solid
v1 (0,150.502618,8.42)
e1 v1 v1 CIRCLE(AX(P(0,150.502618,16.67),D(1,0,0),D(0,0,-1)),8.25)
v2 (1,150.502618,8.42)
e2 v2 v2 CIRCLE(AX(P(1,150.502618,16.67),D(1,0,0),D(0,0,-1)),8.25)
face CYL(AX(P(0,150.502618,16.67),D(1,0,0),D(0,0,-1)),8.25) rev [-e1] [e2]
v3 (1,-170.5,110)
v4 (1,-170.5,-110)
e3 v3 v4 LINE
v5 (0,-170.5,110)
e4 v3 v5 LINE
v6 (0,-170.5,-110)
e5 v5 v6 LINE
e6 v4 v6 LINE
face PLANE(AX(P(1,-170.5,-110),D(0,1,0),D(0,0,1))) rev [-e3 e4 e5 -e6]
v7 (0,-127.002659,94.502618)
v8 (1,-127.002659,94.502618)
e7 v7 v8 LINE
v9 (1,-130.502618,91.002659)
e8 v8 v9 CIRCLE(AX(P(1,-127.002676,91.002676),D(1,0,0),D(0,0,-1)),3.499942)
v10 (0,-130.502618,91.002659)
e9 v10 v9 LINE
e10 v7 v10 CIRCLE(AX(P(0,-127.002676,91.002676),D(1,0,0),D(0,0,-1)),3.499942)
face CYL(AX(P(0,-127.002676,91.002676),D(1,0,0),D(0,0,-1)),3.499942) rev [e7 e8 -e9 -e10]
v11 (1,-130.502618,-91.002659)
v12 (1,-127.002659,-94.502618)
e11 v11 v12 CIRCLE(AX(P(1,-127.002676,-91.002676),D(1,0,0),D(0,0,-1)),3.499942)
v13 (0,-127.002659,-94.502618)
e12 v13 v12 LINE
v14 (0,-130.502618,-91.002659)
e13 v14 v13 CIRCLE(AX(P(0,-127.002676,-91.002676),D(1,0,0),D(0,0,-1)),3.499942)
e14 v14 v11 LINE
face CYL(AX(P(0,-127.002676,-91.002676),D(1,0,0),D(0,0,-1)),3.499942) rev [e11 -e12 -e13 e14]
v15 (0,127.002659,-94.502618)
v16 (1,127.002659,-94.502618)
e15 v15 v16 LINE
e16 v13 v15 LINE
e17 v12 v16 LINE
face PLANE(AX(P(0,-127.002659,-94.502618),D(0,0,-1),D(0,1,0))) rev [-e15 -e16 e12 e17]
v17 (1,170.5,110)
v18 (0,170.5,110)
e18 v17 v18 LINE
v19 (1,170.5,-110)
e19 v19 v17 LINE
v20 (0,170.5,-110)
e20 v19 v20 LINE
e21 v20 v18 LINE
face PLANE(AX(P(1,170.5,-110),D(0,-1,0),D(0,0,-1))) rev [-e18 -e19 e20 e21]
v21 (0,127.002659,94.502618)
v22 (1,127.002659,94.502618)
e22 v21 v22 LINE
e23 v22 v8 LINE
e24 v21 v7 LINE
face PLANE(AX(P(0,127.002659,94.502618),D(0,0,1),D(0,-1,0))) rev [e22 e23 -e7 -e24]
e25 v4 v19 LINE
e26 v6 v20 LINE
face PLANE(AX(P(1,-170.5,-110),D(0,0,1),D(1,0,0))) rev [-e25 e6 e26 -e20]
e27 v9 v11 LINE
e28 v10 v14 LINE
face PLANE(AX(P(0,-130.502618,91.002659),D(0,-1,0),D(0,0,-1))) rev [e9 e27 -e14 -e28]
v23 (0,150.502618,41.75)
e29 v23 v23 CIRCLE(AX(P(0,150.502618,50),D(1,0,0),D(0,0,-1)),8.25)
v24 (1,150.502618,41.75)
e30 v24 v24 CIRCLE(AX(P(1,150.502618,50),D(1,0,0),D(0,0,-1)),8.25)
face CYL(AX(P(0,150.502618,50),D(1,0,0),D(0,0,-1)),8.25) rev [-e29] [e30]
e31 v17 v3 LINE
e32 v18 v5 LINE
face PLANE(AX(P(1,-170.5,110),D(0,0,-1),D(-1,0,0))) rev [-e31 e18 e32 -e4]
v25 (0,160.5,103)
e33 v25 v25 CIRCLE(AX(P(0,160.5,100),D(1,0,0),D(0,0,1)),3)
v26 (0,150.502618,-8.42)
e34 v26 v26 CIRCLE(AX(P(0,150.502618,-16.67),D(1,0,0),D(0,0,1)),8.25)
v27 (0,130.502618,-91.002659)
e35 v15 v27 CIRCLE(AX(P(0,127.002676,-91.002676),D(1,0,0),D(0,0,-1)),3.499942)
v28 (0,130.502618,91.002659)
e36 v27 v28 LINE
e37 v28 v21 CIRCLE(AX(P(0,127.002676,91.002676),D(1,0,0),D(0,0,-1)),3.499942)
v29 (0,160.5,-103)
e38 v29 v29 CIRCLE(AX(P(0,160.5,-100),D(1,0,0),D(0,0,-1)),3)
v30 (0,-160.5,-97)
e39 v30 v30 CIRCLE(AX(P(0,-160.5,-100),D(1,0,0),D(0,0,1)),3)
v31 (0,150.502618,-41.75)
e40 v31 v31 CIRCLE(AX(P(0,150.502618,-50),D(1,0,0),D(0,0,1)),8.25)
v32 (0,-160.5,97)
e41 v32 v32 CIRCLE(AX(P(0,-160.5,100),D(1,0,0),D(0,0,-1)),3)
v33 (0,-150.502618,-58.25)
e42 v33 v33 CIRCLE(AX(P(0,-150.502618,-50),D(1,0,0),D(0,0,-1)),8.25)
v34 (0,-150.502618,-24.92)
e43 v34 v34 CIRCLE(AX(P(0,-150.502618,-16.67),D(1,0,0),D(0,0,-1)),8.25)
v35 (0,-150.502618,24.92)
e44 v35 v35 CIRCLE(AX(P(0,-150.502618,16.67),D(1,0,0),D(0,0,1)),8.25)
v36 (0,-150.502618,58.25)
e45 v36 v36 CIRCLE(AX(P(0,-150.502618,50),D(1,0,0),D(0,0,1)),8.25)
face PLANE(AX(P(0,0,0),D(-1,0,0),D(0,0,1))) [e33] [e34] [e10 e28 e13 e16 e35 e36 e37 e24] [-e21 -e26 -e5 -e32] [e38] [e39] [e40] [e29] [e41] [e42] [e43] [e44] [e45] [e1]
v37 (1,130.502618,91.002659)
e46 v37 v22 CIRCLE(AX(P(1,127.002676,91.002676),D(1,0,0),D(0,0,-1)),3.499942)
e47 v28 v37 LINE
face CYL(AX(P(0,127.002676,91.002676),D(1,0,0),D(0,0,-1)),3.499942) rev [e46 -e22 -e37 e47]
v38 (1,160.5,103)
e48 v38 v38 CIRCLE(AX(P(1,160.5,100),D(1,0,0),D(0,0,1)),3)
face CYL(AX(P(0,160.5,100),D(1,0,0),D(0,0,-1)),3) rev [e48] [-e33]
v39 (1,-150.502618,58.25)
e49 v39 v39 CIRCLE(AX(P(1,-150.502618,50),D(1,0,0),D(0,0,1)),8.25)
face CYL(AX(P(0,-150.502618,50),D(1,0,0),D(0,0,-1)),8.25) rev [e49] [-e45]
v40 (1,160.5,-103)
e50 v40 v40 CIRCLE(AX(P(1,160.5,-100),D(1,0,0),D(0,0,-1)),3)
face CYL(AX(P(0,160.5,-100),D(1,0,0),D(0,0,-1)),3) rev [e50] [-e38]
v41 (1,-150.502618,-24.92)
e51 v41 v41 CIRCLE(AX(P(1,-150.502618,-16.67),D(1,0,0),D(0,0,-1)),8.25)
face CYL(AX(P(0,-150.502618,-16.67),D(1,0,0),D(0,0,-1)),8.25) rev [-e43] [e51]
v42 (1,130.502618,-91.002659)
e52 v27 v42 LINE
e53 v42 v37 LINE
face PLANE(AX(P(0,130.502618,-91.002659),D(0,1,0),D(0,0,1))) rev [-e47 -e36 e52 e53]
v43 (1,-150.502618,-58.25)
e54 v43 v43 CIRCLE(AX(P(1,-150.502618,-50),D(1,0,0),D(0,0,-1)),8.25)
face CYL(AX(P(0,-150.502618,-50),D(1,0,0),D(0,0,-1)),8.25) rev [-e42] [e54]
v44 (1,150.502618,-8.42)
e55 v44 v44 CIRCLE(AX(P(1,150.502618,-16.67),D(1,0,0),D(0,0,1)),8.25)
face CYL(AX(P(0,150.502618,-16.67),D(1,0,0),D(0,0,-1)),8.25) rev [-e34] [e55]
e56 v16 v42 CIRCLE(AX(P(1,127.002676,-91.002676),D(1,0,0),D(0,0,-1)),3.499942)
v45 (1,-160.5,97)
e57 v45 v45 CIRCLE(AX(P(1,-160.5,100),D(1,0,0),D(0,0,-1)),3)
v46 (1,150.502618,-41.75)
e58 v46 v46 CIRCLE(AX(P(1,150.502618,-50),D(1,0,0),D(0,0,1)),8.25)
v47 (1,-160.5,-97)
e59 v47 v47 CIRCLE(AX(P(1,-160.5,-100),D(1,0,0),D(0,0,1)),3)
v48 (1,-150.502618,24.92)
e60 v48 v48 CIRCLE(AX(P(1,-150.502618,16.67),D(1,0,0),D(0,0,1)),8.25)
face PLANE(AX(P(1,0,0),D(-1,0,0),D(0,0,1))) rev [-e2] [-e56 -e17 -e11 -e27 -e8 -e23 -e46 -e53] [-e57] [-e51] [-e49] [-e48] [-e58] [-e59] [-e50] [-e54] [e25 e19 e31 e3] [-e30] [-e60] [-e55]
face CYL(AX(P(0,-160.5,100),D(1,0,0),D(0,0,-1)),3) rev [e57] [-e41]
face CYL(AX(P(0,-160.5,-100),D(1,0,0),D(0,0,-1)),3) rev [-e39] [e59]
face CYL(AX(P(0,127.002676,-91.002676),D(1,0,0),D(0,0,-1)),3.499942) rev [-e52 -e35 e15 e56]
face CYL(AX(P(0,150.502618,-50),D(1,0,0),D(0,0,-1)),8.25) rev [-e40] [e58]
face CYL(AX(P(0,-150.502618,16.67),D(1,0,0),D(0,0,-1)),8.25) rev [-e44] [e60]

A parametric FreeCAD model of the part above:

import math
import FreeCAD as App
import Part
import Sketcher

V = App.Vector


def add_polygon(sketch, points):
    """Adds a closed chain of lines whose ends are joined by coincident constraints."""
    first, n = sketch.GeometryCount, len(points)
    for a, b in zip(points, points[1:] + points[:1]):
        sketch.addGeometry(Part.LineSegment(App.Vector(*a, 0), App.Vector(*b, 0)), False)
    for i in range(n):
        sketch.addConstraint(Sketcher.Constraint("Coincident", first + i, 2, first + (i + 1) % n, 1))

doc = App.newDocument("Part")
params = doc.addObject("Spreadsheet::Sheet", "Params")
for row, (alias, value) in enumerate([
    ("sketch1_width", "341 mm"),
    ("sketch1_height", "220 mm"),
    ("pad1_length", "1 mm"),
    ("sketch2_diameter", "16.5 mm"),
    ("sketch3_diameter", "6 mm"),
], start=1):
    params.set(f"A{row}", alias)
    params.set(f"B{row}", "=" + value)
    params.setAlias(f"B{row}", alias)

body = doc.addObject("PartDesign::Body", "Body")

sketch1 = doc.addObject("Sketcher::SketchObject", "Sketch")
body.addObject(sketch1)
sketch1.AttachmentSupport = (doc.YZ_Plane, [""])
sketch1.MapMode = "FlatFace"
add_polygon(sketch1, [(-170, 110), (-170, -110), (170, -110), (170, 110)])
sketch1.addConstraint(Sketcher.Constraint("Vertical", 0))
sketch1.addConstraint(Sketcher.Constraint("Horizontal", 1))
sketch1.addConstraint(Sketcher.Constraint("Vertical", 2))
sketch1.addConstraint(Sketcher.Constraint("Horizontal", 3))
sketch1.addConstraint(Sketcher.Constraint("Symmetric", 0, 2, 2, 2, -1, 1))
sketch1.addConstraint(Sketcher.Constraint("DistanceX", 1, 1, 1, 2, 341.0))
sketch1.addConstraint(Sketcher.Constraint("DistanceY", 0, 2, 0, 1, 220.0))
sketch1.setExpression("Constraints[9]", "Params.sketch1_width")
sketch1.setExpression("Constraints[10]", "Params.sketch1_height")
pad1 = doc.addObject("PartDesign::Pad", "Pad")
body.addObject(pad1)
pad1.Profile = sketch1
pad1.setExpression("Length", "Params.pad1_length")

sketch2 = doc.addObject("Sketcher::SketchObject", "Sketch001")
body.addObject(sketch2)
sketch2.AttachmentSupport = (doc.YZ_Plane, [""])
sketch2.MapMode = "FlatFace"
sketch2.AttachmentOffset = App.Placement(V(0, 0, 1), App.Rotation())
sketch2.addGeometry(Part.Circle(V(150.5, 50, 0), V(0, 0, 1), 8.2), False)
sketch2.addGeometry(Part.Circle(V(150.5, 16.7, 0), V(0, 0, 1), 8.2), False)
sketch2.addGeometry(Part.Circle(V(150.5, -16.7, 0), V(0, 0, 1), 8.2), False)
sketch2.addGeometry(Part.Circle(V(150.5, -50, 0), V(0, 0, 1), 8.2), False)
sketch2.addGeometry(Part.Circle(V(-150.5, -50, 0), V(0, 0, 1), 8.2), False)
sketch2.addGeometry(Part.Circle(V(-150.5, -16.7, 0), V(0, 0, 1), 8.2), False)
sketch2.addGeometry(Part.Circle(V(-150.5, 16.7, 0), V(0, 0, 1), 8.2), False)
sketch2.addGeometry(Part.Circle(V(-150.5, 50, 0), V(0, 0, 1), 8.2), False)
sketch2.addGeometry(Part.LineSegment(V(-130.5, 91, 0), V(-130.5, -91, 0)), False)
sketch2.addGeometry(Part.ArcOfCircle(Part.Circle(V(-127, -91, 0), V(0, 0, 1), 3.5), math.radians(180), math.radians(270)), False)
sketch2.addGeometry(Part.LineSegment(V(-127, -94.5, 0), V(127, -94.5, 0)), False)
sketch2.addGeometry(Part.ArcOfCircle(Part.Circle(V(127, -91, 0), V(0, 0, 1), 3.5), math.radians(-90), math.radians(0)), False)
sketch2.addGeometry(Part.LineSegment(V(130.5, -91, 0), V(130.5, 91, 0)), False)
sketch2.addGeometry(Part.ArcOfCircle(Part.Circle(V(127, 91, 0), V(0, 0, 1), 3.5), math.radians(0), math.radians(90)), False)
sketch2.addGeometry(Part.LineSegment(V(127, 94.5, 0), V(-127, 94.5, 0)), False)
sketch2.addGeometry(Part.ArcOfCircle(Part.Circle(V(-127, 91, 0), V(0, 0, 1), 3.5), math.radians(90), math.radians(180)), False)
sketch2.addConstraint(Sketcher.Constraint("Coincident", 8, 2, 9, 1))
sketch2.addConstraint(Sketcher.Constraint("Coincident", 9, 2, 10, 1))
sketch2.addConstraint(Sketcher.Constraint("Coincident", 10, 2, 11, 1))
sketch2.addConstraint(Sketcher.Constraint("Coincident", 11, 2, 12, 1))
sketch2.addConstraint(Sketcher.Constraint("Coincident", 12, 2, 13, 1))
sketch2.addConstraint(Sketcher.Constraint("Coincident", 13, 2, 14, 1))
sketch2.addConstraint(Sketcher.Constraint("Coincident", 14, 2, 15, 1))
sketch2.addConstraint(Sketcher.Constraint("Coincident", 15, 2, 8, 1))
sketch2.addConstraint(Sketcher.Constraint("Vertical", 8))
sketch2.addConstraint(Sketcher.Constraint("Horizontal", 10))
sketch2.addConstraint(Sketcher.Constraint("Vertical", 12))
sketch2.addConstraint(Sketcher.Constraint("Horizontal", 14))
sketch2.addConstraint(Sketcher.Constraint("Equal", 0, 1))
sketch2.addConstraint(Sketcher.Constraint("Equal", 1, 2))
sketch2.addConstraint(Sketcher.Constraint("Equal", 2, 3))
sketch2.addConstraint(Sketcher.Constraint("Equal", 3, 4))
sketch2.addConstraint(Sketcher.Constraint("Equal", 4, 5))
sketch2.addConstraint(Sketcher.Constraint("Equal", 5, 6))
sketch2.addConstraint(Sketcher.Constraint("Equal", 6, 7))
sketch2.addConstraint(Sketcher.Constraint("Equal", 9, 11))
sketch2.addConstraint(Sketcher.Constraint("Equal", 11, 13))
sketch2.addConstraint(Sketcher.Constraint("Equal", 13, 15))
sketch2.addConstraint(Sketcher.Constraint("Symmetric", 0, 3, 4, 3, -1, 1))
sketch2.addConstraint(Sketcher.Constraint("Symmetric", 1, 3, 5, 3, -1, 1))
sketch2.addConstraint(Sketcher.Constraint("Symmetric", 2, 3, 6, 3, -1, 1))
sketch2.addConstraint(Sketcher.Constraint("Symmetric", 3, 3, 7, 3, -1, 1))
sketch2.addConstraint(Sketcher.Constraint("Symmetric", 9, 3, 13, 3, -1, 1))
sketch2.addConstraint(Sketcher.Constraint("Symmetric", 3, 3, 4, 3, -2))
sketch2.addConstraint(Sketcher.Constraint("Symmetric", 2, 3, 5, 3, -2))
sketch2.addConstraint(Sketcher.Constraint("Horizontal", 8, 2, 11, 2))
sketch2.addConstraint(Sketcher.Constraint("Horizontal", 12, 2, 15, 2))
sketch2.addConstraint(Sketcher.Constraint("Vertical", 0, 3, 1, 3))
sketch2.addConstraint(Sketcher.Constraint("Vertical", 10, 2, 13, 2))
sketch2.addConstraint(Sketcher.Constraint("Vertical", 9, 2, 14, 2))
sketch2.addConstraint(Sketcher.Constraint("Diameter", 0, 16.5))
sketch2.addConstraint(Sketcher.Constraint("DistanceY", -1, 1, 0, 3, 50.0))
sketch2.addConstraint(Sketcher.Constraint("DistanceX", 4, 3, 8, 2, 20.0))
sketch2.addConstraint(Sketcher.Constraint("DistanceY", -1, 1, 1, 3, 16.67))
sketch2.addConstraint(Sketcher.Constraint("Radius", 9, 3.499942))
sketch2.addConstraint(Sketcher.Constraint("DistanceX", 10, 1, 10, 2, 254.005318))
sketch2.addConstraint(Sketcher.Constraint("DistanceY", 8, 2, 8, 1, 182.005318))
sketch2.addConstraint(Sketcher.Constraint("DistanceX", -1, 1, 0, 3, 150.502618))
sketch2.addConstraint(Sketcher.Constraint("DistanceY", 8, 2, -1, 1, 91.002659))
sketch2.addConstraint(Sketcher.Constraint("DistanceX", 9, 2, -1, 1, 127.002659))
sketch2.addConstraint(Sketcher.Constraint("DistanceY", 9, 2, -1, 1, 94.502618))
sketch2.setExpression("Constraints[34]", "Params.sketch2_diameter")
pocket1 = doc.addObject("PartDesign::Pocket", "Pocket")
body.addObject(pocket1)
pocket1.Profile = sketch2
pocket1.Type = "ThroughAll"

sketch3 = doc.addObject("Sketcher::SketchObject", "Sketch002")
body.addObject(sketch3)
sketch3.AttachmentSupport = (doc.YZ_Plane, [""])
sketch3.MapMode = "FlatFace"
sketch3.AttachmentOffset = App.Placement(V(0, 0, 1), App.Rotation())
sketch3.addGeometry(Part.Circle(V(-160.5, 100, 0), V(0, 0, 1), 3), False)
sketch3.addGeometry(Part.Circle(V(160.5, 100, 0), V(0, 0, 1), 3), False)
sketch3.addGeometry(Part.Circle(V(-160.5, -100, 0), V(0, 0, 1), 3), False)
sketch3.addGeometry(Part.Circle(V(160.5, -100, 0), V(0, 0, 1), 3), False)
sketch3.addConstraint(Sketcher.Constraint("Equal", 0, 1))
sketch3.addConstraint(Sketcher.Constraint("Equal", 1, 2))
sketch3.addConstraint(Sketcher.Constraint("Equal", 2, 3))
sketch3.addConstraint(Sketcher.Constraint("Symmetric", 1, 3, 2, 3, -1, 1))
sketch3.addConstraint(Sketcher.Constraint("Symmetric", 0, 3, 3, 3, -1, 1))
sketch3.addConstraint(Sketcher.Constraint("Symmetric", 0, 3, 1, 3, -2))
sketch3.addConstraint(Sketcher.Constraint("Diameter", 0, 6.0))
sketch3.addConstraint(Sketcher.Constraint("DistanceY", -1, 1, 0, 3, 100.0))
sketch3.addConstraint(Sketcher.Constraint("DistanceX", 0, 3, 1, 3, 321.0))
sketch3.setExpression("Constraints[6]", "Params.sketch3_diameter")
pocket2 = doc.addObject("PartDesign::Pocket", "Pocket001")
body.addObject(pocket2)
pocket2.Profile = sketch3
pocket2.Type = "ThroughAll"

doc.recompute()
